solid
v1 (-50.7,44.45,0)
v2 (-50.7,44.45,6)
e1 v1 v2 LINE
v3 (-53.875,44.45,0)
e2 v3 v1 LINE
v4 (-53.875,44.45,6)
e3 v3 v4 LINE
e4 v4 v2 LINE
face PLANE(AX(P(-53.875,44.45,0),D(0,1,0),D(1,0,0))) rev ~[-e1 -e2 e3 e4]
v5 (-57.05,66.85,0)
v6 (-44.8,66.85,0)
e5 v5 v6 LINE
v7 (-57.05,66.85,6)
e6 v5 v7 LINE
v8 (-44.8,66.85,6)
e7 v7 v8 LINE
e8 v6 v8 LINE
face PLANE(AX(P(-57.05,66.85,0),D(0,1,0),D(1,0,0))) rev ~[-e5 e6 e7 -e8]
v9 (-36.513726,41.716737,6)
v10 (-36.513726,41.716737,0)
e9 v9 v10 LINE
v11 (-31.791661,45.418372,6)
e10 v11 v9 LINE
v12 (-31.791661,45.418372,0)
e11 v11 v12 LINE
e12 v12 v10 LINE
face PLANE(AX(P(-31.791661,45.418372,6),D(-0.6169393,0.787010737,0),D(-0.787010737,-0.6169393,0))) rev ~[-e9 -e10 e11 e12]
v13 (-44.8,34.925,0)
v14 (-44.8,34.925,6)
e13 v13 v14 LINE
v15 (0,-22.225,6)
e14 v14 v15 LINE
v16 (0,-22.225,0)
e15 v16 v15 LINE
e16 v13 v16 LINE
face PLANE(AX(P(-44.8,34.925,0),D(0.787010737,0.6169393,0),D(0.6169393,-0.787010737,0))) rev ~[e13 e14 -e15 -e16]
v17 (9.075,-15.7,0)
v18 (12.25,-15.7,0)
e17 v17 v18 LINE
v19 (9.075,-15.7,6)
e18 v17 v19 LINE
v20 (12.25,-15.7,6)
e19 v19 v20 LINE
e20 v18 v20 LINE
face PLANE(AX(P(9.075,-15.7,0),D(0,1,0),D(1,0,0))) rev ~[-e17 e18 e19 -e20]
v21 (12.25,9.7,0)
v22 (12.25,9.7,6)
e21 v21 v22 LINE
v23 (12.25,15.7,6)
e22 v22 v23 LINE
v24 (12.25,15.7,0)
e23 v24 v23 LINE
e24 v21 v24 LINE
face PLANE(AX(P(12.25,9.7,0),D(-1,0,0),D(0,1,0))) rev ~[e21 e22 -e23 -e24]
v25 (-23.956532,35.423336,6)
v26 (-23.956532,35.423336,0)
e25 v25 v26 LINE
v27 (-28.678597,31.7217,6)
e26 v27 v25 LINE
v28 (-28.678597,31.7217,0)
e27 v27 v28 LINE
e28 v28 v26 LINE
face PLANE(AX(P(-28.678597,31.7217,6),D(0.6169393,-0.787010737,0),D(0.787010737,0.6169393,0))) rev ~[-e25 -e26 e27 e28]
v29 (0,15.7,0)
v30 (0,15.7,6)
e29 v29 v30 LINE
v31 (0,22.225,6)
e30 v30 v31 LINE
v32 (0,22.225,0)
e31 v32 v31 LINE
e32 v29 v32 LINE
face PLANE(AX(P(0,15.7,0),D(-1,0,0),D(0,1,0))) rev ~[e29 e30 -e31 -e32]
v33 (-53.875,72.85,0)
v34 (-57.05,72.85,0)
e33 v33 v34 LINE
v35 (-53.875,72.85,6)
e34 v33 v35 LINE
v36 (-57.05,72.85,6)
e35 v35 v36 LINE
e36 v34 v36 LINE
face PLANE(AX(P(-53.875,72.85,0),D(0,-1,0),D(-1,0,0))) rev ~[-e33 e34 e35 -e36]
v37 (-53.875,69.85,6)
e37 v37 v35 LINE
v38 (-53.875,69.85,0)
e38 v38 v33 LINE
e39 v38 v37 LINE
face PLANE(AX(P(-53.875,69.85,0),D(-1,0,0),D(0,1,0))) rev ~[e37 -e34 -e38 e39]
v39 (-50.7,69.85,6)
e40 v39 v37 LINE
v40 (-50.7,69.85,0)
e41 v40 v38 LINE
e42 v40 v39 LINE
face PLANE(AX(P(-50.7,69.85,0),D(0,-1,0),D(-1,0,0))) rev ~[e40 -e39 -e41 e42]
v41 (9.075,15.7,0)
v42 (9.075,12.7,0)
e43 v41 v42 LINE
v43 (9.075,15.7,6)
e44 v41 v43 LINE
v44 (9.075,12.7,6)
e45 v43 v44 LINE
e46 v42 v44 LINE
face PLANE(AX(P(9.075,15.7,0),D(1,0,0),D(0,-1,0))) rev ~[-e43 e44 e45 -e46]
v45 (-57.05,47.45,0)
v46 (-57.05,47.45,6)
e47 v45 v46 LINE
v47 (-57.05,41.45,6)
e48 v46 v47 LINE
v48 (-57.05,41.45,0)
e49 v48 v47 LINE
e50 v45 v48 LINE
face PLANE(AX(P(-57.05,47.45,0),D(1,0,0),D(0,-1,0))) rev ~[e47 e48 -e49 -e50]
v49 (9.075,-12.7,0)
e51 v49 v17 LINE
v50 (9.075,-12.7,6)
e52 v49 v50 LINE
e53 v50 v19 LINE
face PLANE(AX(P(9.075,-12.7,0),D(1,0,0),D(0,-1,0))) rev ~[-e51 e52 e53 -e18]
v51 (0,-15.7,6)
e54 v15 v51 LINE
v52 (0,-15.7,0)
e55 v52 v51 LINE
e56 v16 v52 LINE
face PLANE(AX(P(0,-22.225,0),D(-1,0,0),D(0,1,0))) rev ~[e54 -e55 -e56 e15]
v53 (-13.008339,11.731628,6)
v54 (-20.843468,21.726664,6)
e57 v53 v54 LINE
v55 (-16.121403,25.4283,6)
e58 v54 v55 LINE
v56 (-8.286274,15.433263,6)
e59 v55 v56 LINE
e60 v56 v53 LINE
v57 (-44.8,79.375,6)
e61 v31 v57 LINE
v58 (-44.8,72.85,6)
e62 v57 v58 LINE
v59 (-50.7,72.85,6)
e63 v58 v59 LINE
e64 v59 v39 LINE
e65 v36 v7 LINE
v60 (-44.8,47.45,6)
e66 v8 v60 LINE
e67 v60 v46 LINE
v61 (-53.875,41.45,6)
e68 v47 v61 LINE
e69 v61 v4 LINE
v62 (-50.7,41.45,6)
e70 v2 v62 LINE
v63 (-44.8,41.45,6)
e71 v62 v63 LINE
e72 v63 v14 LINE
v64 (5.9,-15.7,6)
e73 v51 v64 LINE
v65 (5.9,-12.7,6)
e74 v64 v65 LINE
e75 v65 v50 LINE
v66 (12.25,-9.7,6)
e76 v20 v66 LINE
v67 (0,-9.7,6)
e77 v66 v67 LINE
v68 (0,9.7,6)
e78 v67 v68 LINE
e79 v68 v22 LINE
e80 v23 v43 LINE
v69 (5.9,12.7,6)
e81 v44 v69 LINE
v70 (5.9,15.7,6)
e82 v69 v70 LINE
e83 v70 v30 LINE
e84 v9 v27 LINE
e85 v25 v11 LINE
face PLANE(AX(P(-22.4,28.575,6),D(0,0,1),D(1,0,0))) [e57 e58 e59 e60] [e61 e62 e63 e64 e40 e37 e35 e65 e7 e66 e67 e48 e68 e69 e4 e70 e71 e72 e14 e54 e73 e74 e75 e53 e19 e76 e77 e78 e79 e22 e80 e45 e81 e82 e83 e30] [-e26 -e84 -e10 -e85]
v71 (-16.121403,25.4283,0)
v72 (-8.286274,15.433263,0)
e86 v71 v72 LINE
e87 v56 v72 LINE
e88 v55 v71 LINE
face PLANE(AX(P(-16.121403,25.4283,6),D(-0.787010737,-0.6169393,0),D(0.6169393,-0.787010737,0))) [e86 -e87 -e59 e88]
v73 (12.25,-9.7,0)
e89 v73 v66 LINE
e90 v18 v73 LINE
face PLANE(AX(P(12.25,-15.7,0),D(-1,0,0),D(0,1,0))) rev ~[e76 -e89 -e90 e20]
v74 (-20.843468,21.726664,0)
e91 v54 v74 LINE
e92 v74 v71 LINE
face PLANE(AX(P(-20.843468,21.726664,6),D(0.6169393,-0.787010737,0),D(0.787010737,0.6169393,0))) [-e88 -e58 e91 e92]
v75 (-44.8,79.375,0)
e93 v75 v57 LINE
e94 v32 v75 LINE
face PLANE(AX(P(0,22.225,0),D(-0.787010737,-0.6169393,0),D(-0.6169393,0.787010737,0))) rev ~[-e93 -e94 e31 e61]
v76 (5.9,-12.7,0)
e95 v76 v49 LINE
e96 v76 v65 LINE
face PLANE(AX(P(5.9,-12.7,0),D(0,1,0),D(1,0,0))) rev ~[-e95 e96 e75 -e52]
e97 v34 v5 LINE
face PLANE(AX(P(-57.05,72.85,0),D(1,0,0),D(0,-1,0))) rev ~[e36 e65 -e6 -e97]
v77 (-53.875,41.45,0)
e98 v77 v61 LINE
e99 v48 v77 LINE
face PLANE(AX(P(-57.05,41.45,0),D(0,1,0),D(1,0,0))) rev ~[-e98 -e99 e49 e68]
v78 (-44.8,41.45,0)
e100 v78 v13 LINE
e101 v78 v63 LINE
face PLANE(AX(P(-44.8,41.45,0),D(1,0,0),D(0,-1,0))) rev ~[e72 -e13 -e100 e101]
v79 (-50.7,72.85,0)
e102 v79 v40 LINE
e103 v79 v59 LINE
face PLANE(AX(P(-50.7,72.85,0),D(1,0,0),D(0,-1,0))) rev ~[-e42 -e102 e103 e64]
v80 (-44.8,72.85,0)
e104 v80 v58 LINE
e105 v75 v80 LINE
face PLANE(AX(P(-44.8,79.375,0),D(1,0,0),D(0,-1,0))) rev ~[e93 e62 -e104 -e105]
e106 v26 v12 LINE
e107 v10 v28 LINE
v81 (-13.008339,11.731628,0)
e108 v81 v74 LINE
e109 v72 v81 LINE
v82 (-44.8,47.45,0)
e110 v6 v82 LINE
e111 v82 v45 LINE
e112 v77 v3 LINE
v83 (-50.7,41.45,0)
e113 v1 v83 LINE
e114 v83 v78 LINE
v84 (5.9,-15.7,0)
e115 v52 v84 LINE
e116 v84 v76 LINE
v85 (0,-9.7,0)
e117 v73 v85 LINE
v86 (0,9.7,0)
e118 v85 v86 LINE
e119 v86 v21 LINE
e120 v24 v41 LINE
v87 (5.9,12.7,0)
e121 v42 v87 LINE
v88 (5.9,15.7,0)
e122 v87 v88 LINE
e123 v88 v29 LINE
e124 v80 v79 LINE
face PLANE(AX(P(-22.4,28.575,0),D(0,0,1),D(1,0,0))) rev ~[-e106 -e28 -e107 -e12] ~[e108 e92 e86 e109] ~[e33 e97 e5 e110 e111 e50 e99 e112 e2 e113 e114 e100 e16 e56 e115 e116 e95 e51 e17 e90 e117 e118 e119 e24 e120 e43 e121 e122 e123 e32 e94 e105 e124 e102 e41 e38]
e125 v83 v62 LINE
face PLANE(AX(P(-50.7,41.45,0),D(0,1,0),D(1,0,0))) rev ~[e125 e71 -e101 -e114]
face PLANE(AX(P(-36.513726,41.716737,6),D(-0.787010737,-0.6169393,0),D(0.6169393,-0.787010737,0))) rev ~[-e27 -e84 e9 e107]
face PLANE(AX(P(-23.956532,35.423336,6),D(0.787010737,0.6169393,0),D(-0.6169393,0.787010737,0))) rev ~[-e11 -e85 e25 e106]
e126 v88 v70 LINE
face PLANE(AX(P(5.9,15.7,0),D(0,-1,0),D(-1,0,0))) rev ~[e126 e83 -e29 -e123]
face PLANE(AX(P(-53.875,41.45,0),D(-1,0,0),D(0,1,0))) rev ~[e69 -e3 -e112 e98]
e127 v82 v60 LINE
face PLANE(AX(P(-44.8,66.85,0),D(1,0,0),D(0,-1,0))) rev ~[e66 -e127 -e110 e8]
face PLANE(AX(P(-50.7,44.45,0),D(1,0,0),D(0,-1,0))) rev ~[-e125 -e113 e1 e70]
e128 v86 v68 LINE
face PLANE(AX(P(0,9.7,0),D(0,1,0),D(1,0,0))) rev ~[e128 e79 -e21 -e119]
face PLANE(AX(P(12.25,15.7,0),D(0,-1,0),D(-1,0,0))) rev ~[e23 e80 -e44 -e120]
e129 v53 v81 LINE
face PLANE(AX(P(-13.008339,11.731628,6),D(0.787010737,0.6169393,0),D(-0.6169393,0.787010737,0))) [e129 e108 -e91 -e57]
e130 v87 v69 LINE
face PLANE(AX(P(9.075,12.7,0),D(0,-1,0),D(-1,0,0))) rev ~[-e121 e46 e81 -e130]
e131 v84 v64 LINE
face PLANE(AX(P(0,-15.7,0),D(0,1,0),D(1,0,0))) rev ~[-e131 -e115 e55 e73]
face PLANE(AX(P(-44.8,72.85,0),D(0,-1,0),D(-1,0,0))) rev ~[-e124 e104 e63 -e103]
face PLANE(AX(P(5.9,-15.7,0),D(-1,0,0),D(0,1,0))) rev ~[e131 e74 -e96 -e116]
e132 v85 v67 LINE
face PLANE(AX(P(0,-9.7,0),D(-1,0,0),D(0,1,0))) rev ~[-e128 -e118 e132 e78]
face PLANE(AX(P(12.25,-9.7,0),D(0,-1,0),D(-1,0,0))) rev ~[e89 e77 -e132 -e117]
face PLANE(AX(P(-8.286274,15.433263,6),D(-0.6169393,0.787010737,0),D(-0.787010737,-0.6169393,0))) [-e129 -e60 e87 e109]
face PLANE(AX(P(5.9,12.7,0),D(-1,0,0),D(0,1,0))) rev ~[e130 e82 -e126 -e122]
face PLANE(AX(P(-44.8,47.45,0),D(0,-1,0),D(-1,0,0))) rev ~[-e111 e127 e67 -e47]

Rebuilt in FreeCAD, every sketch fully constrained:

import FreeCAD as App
import Part
import Sketcher
from FreeCAD import Vector
Q = App.Units.Quantity

doc = App.newDocument("Part")
body = doc.addObject("PartDesign::Body", "Body")

# Sketch on XY plane
sketch1 = body.newObject("Sketcher::SketchObject", "Sketch")
sketch1.AttachmentSupport = (doc.getObject("XY_Plane"), [""])
sketch1.MapMode = "FlatFace"
sketch1.addGeometry([
    Part.LineSegment(Vector(-44.8, 79.375, 0), Vector(-44.8, 72.85, 0)),  # 0
    Part.LineSegment(Vector(-44.8, 72.85, 0), Vector(-50.7, 72.85, 0)),  # 1
    Part.LineSegment(Vector(-50.7, 72.85, 0), Vector(-50.7, 69.85, 0)),  # 2
    Part.LineSegment(Vector(-50.7, 69.85, 0), Vector(-53.875, 69.85, 0)),  # 3
    Part.LineSegment(Vector(-53.875, 69.85, 0), Vector(-53.875, 72.85, 0)),  # 4
    Part.LineSegment(Vector(-53.875, 72.85, 0), Vector(-57.05, 72.85, 0)),  # 5
    Part.LineSegment(Vector(-57.05, 72.85, 0), Vector(-57.05, 66.85, 0)),  # 6
    Part.LineSegment(Vector(-57.05, 66.85, 0), Vector(-44.8, 66.85, 0)),  # 7
    Part.LineSegment(Vector(-44.8, 66.85, 0), Vector(-44.8, 47.45, 0)),  # 8
    Part.LineSegment(Vector(-44.8, 47.45, 0), Vector(-57.05, 47.45, 0)),  # 9
    Part.LineSegment(Vector(-57.05, 47.45, 0), Vector(-57.05, 41.45, 0)),  # 10
    Part.LineSegment(Vector(-57.05, 41.45, 0), Vector(-53.875, 41.45, 0)),  # 11
    Part.LineSegment(Vector(-53.875, 41.45, 0), Vector(-53.875, 44.45, 0)),  # 12
    Part.LineSegment(Vector(-53.875, 44.45, 0), Vector(-50.7, 44.45, 0)),  # 13
    Part.LineSegment(Vector(-50.7, 44.45, 0), Vector(-50.7, 41.45, 0)),  # 14
    Part.LineSegment(Vector(-50.7, 41.45, 0), Vector(-44.8, 41.45, 0)),  # 15
    Part.LineSegment(Vector(-44.8, 41.45, 0), Vector(-44.8, 34.925, 0)),  # 16
    Part.LineSegment(Vector(-44.8, 34.925, 0), Vector(0, -22.225, 0)),  # 17
    Part.LineSegment(Vector(0, -22.225, 0), Vector(0, -15.7, 0)),  # 18
    Part.LineSegment(Vector(0, -15.7, 0), Vector(5.9, -15.7, 0)),  # 19
    Part.LineSegment(Vector(5.9, -15.7, 0), Vector(5.9, -12.7, 0)),  # 20
    Part.LineSegment(Vector(5.9, -12.7, 0), Vector(9.075, -12.7, 0)),  # 21
    Part.LineSegment(Vector(9.075, -12.7, 0), Vector(9.075, -15.7, 0)),  # 22
    Part.LineSegment(Vector(9.075, -15.7, 0), Vector(12.25, -15.7, 0)),  # 23
    Part.LineSegment(Vector(12.25, -15.7, 0), Vector(12.25, -9.7, 0)),  # 24
    Part.LineSegment(Vector(12.25, -9.7, 0), Vector(0, -9.7, 0)),  # 25
    Part.LineSegment(Vector(0, -9.7, 0), Vector(0, 9.7, 0)),  # 26
    Part.LineSegment(Vector(0, 9.7, 0), Vector(12.25, 9.7, 0)),  # 27
    Part.LineSegment(Vector(12.25, 9.7, 0), Vector(12.25, 15.7, 0)),  # 28
    Part.LineSegment(Vector(12.25, 15.7, 0), Vector(9.075, 15.7, 0)),  # 29
    Part.LineSegment(Vector(9.075, 15.7, 0), Vector(9.075, 12.7, 0)),  # 30
    Part.LineSegment(Vector(9.075, 12.7, 0), Vector(5.9, 12.7, 0)),  # 31
    Part.LineSegment(Vector(5.9, 12.7, 0), Vector(5.9, 15.7, 0)),  # 32
    Part.LineSegment(Vector(5.9, 15.7, 0), Vector(0, 15.7, 0)),  # 33
    Part.LineSegment(Vector(0, 15.7, 0), Vector(0, 22.225, 0)),  # 34
    Part.LineSegment(Vector(0, 22.225, 0), Vector(-44.8, 79.375, 0)),  # 35
], False)
sketch1.addConstraint([
    Sketcher.Constraint("Coincident", 0, 2, 1, 1),
    Sketcher.Constraint("Coincident", 1, 2, 2, 1),
    Sketcher.Constraint("Coincident", 2, 2, 3, 1),
    Sketcher.Constraint("Coincident", 3, 2, 4, 1),
    Sketcher.Constraint("Coincident", 4, 2, 5, 1),
    Sketcher.Constraint("Coincident", 5, 2, 6, 1),
    Sketcher.Constraint("Coincident", 6, 2, 7, 1),
    Sketcher.Constraint("Coincident", 7, 2, 8, 1),
    Sketcher.Constraint("Coincident", 8, 2, 9, 1),
    Sketcher.Constraint("Coincident", 9, 2, 10, 1),
    Sketcher.Constraint("Coincident", 10, 2, 11, 1),
    Sketcher.Constraint("Coincident", 11, 2, 12, 1),
    Sketcher.Constraint("Coincident", 12, 2, 13, 1),
    Sketcher.Constraint("Coincident", 13, 2, 14, 1),
    Sketcher.Constraint("Coincident", 14, 2, 15, 1),
    Sketcher.Constraint("Coincident", 15, 2, 16, 1),
    Sketcher.Constraint("Coincident", 16, 2, 17, 1),
    Sketcher.Constraint("Coincident", 17, 2, 18, 1),
    Sketcher.Constraint("Coincident", 18, 2, 19, 1),
    Sketcher.Constraint("Coincident", 19, 2, 20, 1),
    Sketcher.Constraint("Coincident", 20, 2, 21, 1),
    Sketcher.Constraint("Coincident", 21, 2, 22, 1),
    Sketcher.Constraint("Coincident", 22, 2, 23, 1),
    Sketcher.Constraint("Coincident", 23, 2, 24, 1),
    Sketcher.Constraint("Coincident", 24, 2, 25, 1),
    Sketcher.Constraint("Coincident", 25, 2, 26, 1),
    Sketcher.Constraint("Coincident", 26, 2, 27, 1),
    Sketcher.Constraint("Coincident", 27, 2, 28, 1),
    Sketcher.Constraint("Coincident", 28, 2, 29, 1),
    Sketcher.Constraint("Coincident", 29, 2, 30, 1),
    Sketcher.Constraint("Coincident", 30, 2, 31, 1),
    Sketcher.Constraint("Coincident", 31, 2, 32, 1),
    Sketcher.Constraint("Coincident", 32, 2, 33, 1),
    Sketcher.Constraint("Coincident", 33, 2, 34, 1),
    Sketcher.Constraint("Coincident", 34, 2, 35, 1),
    Sketcher.Constraint("Coincident", 35, 2, 0, 1),
    Sketcher.Constraint("Vertical", 0),
    Sketcher.Constraint("Horizontal", 1),
    Sketcher.Constraint("Vertical", 2),
    Sketcher.Constraint("Horizontal", 3),
    Sketcher.Constraint("Vertical", 4),
    Sketcher.Constraint("Horizontal", 5),
    Sketcher.Constraint("Vertical", 6),
    Sketcher.Constraint("Horizontal", 7),
    Sketcher.Constraint("Vertical", 8),
    Sketcher.Constraint("Horizontal", 9),
    Sketcher.Constraint("Vertical", 10),
    Sketcher.Constraint("Horizontal", 11),
    Sketcher.Constraint("Vertical", 12),
    Sketcher.Constraint("Horizontal", 13),
    Sketcher.Constraint("Vertical", 14),
    Sketcher.Constraint("Horizontal", 15),
    Sketcher.Constraint("Vertical", 16),
    Sketcher.Constraint("Vertical", 18),
    Sketcher.Constraint("Horizontal", 19),
    Sketcher.Constraint("Vertical", 20),
    Sketcher.Constraint("Horizontal", 21),
    Sketcher.Constraint("Vertical", 22),
    Sketcher.Constraint("Horizontal", 23),
    Sketcher.Constraint("Vertical", 24),
    Sketcher.Constraint("Horizontal", 25),
    Sketcher.Constraint("Vertical", 26),
    Sketcher.Constraint("Horizontal", 27),
    Sketcher.Constraint("Vertical", 28),
    Sketcher.Constraint("Horizontal", 29),
    Sketcher.Constraint("Vertical", 30),
    Sketcher.Constraint("Horizontal", 31),
    Sketcher.Constraint("Vertical", 32),
    Sketcher.Constraint("Horizontal", 33),
    Sketcher.Constraint("Vertical", 34),
    Sketcher.Constraint("Symmetric", 25, 2, 26, 2, -1, 1),
    Sketcher.Constraint("Symmetric", 18, 2, 33, 2, -1, 1),
    Sketcher.Constraint("Symmetric", 23, 2, 28, 2, -1),
    Sketcher.Constraint("Symmetric", 21, 2, 30, 2, -1),
    Sketcher.Constraint("Symmetric", 17, 2, 34, 2, -1),
    Sketcher.Constraint("Parallel", 17, 35),
    Sketcher.Constraint("Horizontal", 1, 2, 4, 2),
    Sketcher.Constraint("Horizontal", 11, 2, 14, 2),
    Sketcher.Constraint("Horizontal", 19, 2, 22, 2),
    Sketcher.Constraint("Vertical", 0, 2, 7, 2),
    Sketcher.Constraint("Vertical", 6, 2, 9, 2),
    Sketcher.Constraint("Vertical", 4, 2, 11, 2),
    Sketcher.Constraint("Vertical", 2, 2, 13, 2),
    Sketcher.Constraint("Vertical", 8, 2, 15, 2),
    Sketcher.Constraint("Vertical", 20, 2, 31, 2),
    Sketcher.Constraint("Equal", 3, 5),
    Sketcher.Constraint("Equal", 15, 19),
    Sketcher.Constraint("Equal", 13, 21),
    Sketcher.Constraint("Equal", 21, 23),
    Sketcher.Constraint("Equal", 6, 10),
    Sketcher.Constraint("Equal", 4, 12),
    Sketcher.Constraint("Equal", 0, 16),
    Sketcher.Constraint("Equal", 16, 18),
    Sketcher.Constraint("Equal", 14, 20),
    Sketcher.Constraint("Equal", 10, 24),
    Sketcher.Constraint("DistanceY", 2, 2, 2, 1, Q("3 mm")),
    Sketcher.Constraint("DistanceY", 6, 2, 6, 1, Q("6 mm")),
    Sketcher.Constraint("DistanceX", 1, 2, 1, 1, Q("5.9 mm")),
    Sketcher.Constraint("DistanceY", 8, 2, 8, 1, Q("19.4 mm")),
    Sketcher.Constraint("DistanceX", 7, 1, 7, 2, Q("12.25 mm")),
    Sketcher.Constraint("DistanceX", 0, 2, -1, 1, Q("44.8 mm")),
    Sketcher.Constraint("DistanceY", 0, 2, 0, 1, Q("6.525 mm")),
    Sketcher.Constraint("DistanceY", -1, 1, 0, 2, Q("72.85 mm")),
])
pad1 = body.newObject("PartDesign::Pad", "Pad")
pad1.Profile = sketch1
pad1.Length = 6

# Sketch on XY plane
sketch2 = body.newObject("Sketcher::SketchObject", "Sketch001")
sketch2.AttachmentSupport = (doc.getObject("XY_Plane"), [""])
sketch2.MapMode = "FlatFace"
sketch2.AttachmentOffset = App.Placement(Vector(0, 0, 6), App.Rotation())
sketch2.addGeometry([
    Part.LineSegment(Vector(-31.791661, 45.418372, 0), Vector(-36.513726, 41.716737, 0)),  # 0
    Part.LineSegment(Vector(-36.513726, 41.716737, 0), Vector(-28.678597, 31.7217, 0)),  # 1
    Part.LineSegment(Vector(-28.678597, 31.7217, 0), Vector(-23.956532, 35.423336, 0)),  # 2
    Part.LineSegment(Vector(-23.956532, 35.423336, 0), Vector(-31.791661, 45.418372, 0)),  # 3
    Part.LineSegment(Vector(-8.286274, 15.433263, 0), Vector(-16.121403, 25.4283, 0)),  # 4
    Part.LineSegment(Vector(-16.121403, 25.4283, 0), Vector(-20.843468, 21.726664, 0)),  # 5
    Part.LineSegment(Vector(-20.843468, 21.726664, 0), Vector(-13.008339, 11.731628, 0)),  # 6
    Part.LineSegment(Vector(-13.008339, 11.731628, 0), Vector(-8.286274, 15.433263, 0)),  # 7
], False)
sketch2.addConstraint([
    Sketcher.Constraint("Coincident", 0, 2, 1, 1),
    Sketcher.Constraint("Coincident", 1, 2, 2, 1),
    Sketcher.Constraint("Coincident", 2, 2, 3, 1),
    Sketcher.Constraint("Coincident", 3, 2, 0, 1),
    Sketcher.Constraint("Coincident", 4, 2, 5, 1),
    Sketcher.Constraint("Coincident", 5, 2, 6, 1),
    Sketcher.Constraint("Coincident", 6, 2, 7, 1),
    Sketcher.Constraint("Coincident", 7, 2, 4, 1),
    Sketcher.Constraint("Perpendicular", 0, 1),
    Sketcher.Constraint("Perpendicular", 1, 2),
    Sketcher.Constraint("Perpendicular", 2, 3),
    Sketcher.Constraint("Parallel", 3, 4),
    Sketcher.Constraint("Perpendicular", 4, 5),
    Sketcher.Constraint("Perpendicular", 5, 6),
    Sketcher.Constraint("Perpendicular", 6, 7),
    Sketcher.Constraint("Equal", 3, 4),
    Sketcher.Constraint("Equal", 2, 5),
    Sketcher.Constraint("Distance", 0, Q("6 mm")),
    Sketcher.Constraint("Distance", 1, Q("12.7 mm")),
    Sketcher.Constraint("DistanceY", -1, 1, 1, 2, Q("31.7217 mm")),
    Sketcher.Constraint("DistanceY", -1, 1, 4, 2, Q("25.4283 mm")),
    Sketcher.Constraint("DistanceY", 2, 2, 0, 2, Q("6.293401 mm")),
    Sketcher.Constraint("DistanceX", 3, 2, -1, 1, Q("31.791661 mm")),
    Sketcher.Constraint("DistanceX", 6, 2, -1, 1, Q("13.008339 mm")),
])
pocket1 = body.newObject("PartDesign::Pocket", "Pocket")
pocket1.Profile = sketch2
pocket1.Type = "ThroughAll"

doc.recompute()
